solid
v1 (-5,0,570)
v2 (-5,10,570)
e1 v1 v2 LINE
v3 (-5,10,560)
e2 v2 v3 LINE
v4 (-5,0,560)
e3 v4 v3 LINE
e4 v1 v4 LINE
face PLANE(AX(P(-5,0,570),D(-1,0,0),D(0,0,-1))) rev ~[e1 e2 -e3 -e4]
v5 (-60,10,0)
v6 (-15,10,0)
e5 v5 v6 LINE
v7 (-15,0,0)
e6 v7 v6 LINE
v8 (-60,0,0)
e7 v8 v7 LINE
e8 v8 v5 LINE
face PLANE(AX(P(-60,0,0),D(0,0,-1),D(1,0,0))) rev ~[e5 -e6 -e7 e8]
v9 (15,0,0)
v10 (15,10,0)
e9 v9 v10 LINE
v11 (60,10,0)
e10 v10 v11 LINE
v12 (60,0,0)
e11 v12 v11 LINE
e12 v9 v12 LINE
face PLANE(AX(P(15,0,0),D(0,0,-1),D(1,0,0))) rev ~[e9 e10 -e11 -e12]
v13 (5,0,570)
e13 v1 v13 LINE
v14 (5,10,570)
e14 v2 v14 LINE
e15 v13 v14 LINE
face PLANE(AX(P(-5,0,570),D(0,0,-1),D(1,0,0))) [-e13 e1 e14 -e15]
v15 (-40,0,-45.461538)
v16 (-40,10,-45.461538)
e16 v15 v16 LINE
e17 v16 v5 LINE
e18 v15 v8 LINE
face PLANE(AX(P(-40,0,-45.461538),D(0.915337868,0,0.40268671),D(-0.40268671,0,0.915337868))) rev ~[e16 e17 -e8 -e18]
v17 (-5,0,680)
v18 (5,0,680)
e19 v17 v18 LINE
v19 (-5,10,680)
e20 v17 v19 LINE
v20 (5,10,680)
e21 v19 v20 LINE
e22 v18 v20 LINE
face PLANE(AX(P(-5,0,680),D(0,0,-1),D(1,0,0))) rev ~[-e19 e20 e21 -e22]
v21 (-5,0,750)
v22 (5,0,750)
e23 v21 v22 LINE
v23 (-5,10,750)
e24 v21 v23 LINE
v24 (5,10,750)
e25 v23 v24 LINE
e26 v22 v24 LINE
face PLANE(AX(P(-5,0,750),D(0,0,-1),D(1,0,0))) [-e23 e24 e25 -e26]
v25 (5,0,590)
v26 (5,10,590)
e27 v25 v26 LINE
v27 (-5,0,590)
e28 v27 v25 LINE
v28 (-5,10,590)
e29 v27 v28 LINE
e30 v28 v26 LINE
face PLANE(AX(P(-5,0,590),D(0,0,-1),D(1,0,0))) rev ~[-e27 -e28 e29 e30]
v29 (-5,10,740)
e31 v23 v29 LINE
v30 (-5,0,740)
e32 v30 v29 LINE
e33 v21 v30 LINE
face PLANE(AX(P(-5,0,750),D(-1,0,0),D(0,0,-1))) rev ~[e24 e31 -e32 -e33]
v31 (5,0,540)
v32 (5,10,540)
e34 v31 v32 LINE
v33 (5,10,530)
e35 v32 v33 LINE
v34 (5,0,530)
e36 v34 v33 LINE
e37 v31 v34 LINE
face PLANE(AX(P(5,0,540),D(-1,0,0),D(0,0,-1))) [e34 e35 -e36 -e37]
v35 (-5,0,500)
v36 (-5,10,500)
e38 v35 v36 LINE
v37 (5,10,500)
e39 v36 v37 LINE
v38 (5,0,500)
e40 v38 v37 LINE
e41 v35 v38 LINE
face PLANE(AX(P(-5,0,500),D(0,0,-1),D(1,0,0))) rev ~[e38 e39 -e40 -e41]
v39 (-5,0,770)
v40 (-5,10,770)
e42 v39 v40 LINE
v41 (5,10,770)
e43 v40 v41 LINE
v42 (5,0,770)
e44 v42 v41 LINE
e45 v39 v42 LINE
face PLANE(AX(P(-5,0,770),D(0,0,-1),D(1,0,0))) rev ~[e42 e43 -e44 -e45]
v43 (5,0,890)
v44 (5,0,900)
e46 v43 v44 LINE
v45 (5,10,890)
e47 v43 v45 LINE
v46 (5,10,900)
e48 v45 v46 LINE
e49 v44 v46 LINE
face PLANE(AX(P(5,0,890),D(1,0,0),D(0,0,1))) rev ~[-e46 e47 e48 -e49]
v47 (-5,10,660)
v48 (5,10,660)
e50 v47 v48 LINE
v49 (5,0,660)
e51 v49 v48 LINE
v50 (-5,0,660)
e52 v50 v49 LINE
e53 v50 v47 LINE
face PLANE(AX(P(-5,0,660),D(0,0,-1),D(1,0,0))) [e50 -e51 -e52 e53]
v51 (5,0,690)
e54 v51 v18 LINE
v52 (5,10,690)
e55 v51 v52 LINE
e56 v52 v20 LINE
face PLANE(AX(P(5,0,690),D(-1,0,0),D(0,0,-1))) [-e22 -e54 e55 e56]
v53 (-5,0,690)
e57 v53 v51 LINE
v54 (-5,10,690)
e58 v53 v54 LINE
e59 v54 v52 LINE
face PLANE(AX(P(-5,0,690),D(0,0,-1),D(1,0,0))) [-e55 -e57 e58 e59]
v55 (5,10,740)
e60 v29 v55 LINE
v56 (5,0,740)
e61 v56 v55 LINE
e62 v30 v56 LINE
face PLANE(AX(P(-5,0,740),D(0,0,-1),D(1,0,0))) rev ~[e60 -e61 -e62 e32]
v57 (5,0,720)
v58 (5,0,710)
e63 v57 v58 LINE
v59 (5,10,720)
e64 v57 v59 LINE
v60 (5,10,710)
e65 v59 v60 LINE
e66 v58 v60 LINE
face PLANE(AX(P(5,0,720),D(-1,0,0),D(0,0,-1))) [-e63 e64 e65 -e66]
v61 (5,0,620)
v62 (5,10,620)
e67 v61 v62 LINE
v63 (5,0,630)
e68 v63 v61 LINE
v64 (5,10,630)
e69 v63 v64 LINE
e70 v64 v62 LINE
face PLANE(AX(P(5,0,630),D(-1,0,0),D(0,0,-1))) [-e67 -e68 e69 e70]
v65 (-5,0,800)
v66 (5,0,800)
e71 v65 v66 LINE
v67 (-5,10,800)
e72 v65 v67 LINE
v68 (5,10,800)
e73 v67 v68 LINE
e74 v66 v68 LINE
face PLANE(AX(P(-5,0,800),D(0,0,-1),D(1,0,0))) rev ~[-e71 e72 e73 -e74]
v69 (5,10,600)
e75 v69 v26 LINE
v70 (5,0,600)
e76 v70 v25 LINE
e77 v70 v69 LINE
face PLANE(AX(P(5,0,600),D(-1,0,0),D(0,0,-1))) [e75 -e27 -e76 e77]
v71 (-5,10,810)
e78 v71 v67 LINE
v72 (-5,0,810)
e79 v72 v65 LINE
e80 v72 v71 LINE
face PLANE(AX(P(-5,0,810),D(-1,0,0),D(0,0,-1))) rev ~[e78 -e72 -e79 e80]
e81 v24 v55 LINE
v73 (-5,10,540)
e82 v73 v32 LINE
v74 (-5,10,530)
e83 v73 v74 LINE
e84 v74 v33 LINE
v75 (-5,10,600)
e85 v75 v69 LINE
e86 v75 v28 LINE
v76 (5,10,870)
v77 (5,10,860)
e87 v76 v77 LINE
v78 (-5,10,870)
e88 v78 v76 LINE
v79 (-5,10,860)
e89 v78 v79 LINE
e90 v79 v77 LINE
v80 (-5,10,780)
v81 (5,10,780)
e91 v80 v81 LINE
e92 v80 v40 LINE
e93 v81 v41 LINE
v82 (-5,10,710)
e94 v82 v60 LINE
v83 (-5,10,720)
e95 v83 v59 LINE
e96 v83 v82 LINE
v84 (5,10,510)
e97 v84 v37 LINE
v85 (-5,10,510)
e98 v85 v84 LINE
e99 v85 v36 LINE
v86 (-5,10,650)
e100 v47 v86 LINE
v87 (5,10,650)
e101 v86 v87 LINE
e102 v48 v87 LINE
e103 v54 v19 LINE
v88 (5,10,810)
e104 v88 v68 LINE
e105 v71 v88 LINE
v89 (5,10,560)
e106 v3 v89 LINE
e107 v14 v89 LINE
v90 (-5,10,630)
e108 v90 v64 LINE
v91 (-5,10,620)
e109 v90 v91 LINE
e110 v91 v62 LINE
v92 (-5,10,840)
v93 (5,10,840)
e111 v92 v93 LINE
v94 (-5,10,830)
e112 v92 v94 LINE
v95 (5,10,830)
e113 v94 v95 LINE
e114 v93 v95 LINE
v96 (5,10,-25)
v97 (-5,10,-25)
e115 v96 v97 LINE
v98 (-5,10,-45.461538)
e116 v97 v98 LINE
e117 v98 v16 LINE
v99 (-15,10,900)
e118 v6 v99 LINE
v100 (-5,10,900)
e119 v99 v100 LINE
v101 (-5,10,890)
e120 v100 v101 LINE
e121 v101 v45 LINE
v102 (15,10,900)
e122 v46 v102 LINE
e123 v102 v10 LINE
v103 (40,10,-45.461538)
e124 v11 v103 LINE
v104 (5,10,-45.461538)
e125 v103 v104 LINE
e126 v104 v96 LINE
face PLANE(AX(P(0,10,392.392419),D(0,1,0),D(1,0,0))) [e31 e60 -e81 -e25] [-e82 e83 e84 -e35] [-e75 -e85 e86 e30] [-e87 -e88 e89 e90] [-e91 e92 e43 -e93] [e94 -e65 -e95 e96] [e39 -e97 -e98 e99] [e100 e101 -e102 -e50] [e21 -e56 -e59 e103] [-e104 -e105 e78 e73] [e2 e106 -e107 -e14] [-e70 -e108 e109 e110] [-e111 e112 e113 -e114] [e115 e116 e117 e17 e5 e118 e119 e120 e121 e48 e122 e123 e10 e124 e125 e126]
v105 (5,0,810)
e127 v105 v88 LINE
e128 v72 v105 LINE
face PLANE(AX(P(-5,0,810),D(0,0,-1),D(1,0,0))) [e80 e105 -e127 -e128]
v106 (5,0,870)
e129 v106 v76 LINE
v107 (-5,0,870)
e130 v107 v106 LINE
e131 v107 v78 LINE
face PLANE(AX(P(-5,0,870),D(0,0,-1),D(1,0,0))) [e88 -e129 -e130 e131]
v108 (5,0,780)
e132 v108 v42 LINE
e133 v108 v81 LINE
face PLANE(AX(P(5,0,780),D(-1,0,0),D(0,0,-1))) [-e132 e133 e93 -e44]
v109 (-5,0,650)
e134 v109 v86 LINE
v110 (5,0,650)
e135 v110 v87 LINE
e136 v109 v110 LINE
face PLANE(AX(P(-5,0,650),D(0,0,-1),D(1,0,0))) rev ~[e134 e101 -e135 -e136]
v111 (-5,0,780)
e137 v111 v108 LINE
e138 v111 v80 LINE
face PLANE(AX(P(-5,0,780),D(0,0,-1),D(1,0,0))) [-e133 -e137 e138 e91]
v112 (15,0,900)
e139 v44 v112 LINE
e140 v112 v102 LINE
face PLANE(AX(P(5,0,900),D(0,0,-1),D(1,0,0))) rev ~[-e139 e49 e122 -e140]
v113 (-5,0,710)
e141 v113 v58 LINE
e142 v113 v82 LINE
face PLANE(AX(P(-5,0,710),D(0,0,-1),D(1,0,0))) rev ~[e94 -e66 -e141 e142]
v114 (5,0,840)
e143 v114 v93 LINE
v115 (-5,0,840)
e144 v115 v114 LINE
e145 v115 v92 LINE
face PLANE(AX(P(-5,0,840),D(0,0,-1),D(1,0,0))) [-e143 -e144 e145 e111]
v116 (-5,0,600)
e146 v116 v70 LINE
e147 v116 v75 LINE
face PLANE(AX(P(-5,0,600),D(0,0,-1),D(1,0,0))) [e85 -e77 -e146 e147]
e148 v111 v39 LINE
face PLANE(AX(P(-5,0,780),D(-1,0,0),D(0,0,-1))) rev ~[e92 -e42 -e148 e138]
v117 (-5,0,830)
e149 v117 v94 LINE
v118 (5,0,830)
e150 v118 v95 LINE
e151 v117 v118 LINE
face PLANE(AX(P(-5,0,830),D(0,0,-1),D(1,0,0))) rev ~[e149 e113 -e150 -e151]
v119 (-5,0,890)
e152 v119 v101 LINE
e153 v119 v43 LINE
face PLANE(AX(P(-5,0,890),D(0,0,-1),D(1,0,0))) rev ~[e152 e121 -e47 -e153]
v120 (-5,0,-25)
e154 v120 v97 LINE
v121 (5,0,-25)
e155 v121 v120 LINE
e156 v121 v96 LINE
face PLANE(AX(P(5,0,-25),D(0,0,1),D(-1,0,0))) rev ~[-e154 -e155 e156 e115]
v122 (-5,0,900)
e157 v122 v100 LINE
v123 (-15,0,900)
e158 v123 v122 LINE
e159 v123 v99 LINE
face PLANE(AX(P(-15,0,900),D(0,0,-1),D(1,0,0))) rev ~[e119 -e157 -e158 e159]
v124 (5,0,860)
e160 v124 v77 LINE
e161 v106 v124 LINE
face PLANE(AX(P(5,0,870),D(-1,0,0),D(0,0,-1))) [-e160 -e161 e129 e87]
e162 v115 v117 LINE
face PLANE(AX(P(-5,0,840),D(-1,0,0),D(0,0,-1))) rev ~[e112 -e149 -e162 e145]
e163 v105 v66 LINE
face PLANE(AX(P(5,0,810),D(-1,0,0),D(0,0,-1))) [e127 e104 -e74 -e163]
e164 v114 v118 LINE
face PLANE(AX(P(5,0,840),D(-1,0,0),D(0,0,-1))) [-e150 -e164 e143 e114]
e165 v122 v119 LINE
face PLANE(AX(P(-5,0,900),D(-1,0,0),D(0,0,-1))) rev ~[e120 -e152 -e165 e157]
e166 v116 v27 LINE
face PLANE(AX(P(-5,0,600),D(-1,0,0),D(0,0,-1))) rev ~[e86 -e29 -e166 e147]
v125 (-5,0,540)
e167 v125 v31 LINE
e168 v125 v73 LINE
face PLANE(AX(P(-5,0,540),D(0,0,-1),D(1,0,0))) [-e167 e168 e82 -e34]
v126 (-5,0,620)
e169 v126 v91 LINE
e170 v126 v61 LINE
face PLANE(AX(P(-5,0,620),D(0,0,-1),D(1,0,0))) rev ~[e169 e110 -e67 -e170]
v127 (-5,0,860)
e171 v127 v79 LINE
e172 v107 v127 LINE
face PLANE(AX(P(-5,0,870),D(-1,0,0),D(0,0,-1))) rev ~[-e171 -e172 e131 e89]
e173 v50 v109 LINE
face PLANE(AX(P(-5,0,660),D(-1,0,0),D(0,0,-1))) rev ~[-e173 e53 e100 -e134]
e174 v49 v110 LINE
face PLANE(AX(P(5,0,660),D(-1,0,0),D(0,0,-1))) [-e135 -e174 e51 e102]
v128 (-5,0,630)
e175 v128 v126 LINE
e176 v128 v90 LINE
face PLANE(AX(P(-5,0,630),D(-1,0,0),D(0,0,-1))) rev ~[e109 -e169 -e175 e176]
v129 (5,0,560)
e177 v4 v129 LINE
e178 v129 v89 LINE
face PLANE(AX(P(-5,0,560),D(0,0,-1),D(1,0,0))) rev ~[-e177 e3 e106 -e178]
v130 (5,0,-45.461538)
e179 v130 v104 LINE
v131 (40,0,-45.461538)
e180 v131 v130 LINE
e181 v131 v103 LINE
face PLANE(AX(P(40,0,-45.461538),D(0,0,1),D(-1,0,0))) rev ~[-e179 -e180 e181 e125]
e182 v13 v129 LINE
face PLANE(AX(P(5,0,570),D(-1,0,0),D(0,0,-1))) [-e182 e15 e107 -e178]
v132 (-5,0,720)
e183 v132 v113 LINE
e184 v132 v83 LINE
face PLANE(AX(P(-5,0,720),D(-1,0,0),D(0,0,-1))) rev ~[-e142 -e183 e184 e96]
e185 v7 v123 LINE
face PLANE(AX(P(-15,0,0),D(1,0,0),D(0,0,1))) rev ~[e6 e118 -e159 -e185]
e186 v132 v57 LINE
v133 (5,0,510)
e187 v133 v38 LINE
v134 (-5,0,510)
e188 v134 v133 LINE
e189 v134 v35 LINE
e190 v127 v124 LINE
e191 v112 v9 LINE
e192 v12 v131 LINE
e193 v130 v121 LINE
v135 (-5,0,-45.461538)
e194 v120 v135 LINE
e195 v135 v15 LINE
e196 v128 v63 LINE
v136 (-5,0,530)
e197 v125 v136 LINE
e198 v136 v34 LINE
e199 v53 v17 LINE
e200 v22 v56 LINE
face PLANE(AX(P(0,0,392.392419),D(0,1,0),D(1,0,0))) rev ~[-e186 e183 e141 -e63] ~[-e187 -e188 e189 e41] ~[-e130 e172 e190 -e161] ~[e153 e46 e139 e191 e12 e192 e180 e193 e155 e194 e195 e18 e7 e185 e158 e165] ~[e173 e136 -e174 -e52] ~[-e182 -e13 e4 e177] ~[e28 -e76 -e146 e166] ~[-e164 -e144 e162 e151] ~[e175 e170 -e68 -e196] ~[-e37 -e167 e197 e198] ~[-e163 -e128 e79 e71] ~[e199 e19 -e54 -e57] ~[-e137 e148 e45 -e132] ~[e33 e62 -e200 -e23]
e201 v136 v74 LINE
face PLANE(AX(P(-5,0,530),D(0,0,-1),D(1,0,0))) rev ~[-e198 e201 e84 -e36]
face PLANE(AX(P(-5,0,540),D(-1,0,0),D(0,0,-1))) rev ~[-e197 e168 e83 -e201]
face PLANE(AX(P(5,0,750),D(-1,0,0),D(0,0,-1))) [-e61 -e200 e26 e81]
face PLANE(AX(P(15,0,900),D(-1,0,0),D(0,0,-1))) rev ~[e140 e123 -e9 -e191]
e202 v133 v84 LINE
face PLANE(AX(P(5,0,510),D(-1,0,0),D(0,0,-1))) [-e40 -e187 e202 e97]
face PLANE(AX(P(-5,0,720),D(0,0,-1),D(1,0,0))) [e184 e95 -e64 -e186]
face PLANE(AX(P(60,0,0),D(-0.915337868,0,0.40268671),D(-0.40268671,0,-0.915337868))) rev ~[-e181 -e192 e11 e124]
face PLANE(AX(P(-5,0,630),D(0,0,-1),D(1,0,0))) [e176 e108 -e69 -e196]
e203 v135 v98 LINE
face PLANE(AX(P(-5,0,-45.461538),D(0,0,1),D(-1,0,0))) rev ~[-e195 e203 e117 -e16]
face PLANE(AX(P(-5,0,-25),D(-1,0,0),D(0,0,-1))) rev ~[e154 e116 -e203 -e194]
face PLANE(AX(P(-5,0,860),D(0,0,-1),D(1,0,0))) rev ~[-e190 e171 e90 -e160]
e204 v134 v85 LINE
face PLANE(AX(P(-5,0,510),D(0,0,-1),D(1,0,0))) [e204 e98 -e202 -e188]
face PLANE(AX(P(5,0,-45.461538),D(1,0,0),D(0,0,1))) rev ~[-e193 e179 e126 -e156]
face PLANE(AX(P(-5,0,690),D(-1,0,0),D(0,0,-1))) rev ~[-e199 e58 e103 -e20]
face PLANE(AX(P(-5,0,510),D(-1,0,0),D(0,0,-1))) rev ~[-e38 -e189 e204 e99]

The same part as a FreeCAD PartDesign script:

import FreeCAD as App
import Part
import Sketcher
from FreeCAD import Vector
Q = App.Units.Quantity


def add_polygon(sketch, points):
    """Adds a closed chain of lines whose ends are joined by coincident constraints."""
    first, n = sketch.GeometryCount, len(points)
    for a, b in zip(points, points[1:] + points[:1]):
        sketch.addGeometry(Part.LineSegment(App.Vector(*a, 0), App.Vector(*b, 0)), False)
    for i in range(n):
        sketch.addConstraint(Sketcher.Constraint("Coincident", first + i, 2, first + (i + 1) % n, 1))

doc = App.newDocument("Part")
params = doc.addObject("Spreadsheet::Sheet", "Params")
for row, (alias, value) in enumerate([
    ("sketch1_width", "45 mm"),
    ("sketch1_width2", "10 mm"),
    ("sketch1_width3", "35 mm"),
    ("sketch1_height", "900 mm"),
    ("pad1_length", "10 mm"),
], start=1):
    params.set(f"A{row}", alias)
    params.set(f"B{row}", "=" + value)
    params.setAlias(f"B{row}", alias)

body = doc.addObject("PartDesign::Body", "Body")

sketch1 = body.newObject("Sketcher::SketchObject", "Sketch")
sketch1.AttachmentSupport = (doc.getObject("XZ_Plane"), [""])
sketch1.MapMode = "FlatFace"
add_polygon(sketch1, [(-60, 0), (-15, 0), (-15, 900), (-5, 900), (-5, 890), (5, 890), (5, 900), (15, 900), (15, 0), (60, 0), (40, -45.461538), (5, -45.461538), (5, -25), (-5, -25), (-5, -45.461538), (-40, -45.461538)])
add_polygon(sketch1, [(5, 870), (-5, 870), (-5, 860), (5, 860)])
add_polygon(sketch1, [(5, 840), (-5, 840), (-5, 830), (5, 830)])
add_polygon(sketch1, [(5, 810), (-5, 810), (-5, 800), (5, 800)])
add_polygon(sketch1, [(5, 780), (-5, 780), (-5, 770), (5, 770)])
add_polygon(sketch1, [(5, 750), (-5, 750), (-5, 740), (5, 740)])
add_polygon(sketch1, [(5, 720), (-5, 720), (-5, 710), (5, 710)])
add_polygon(sketch1, [(5, 690), (-5, 690), (-5, 680), (5, 680)])
add_polygon(sketch1, [(5, 660), (-5, 660), (-5, 650), (5, 650)])
add_polygon(sketch1, [(5, 630), (-5, 630), (-5, 620), (5, 620)])
add_polygon(sketch1, [(5, 600), (-5, 600), (-5, 590), (5, 590)])
add_polygon(sketch1, [(5, 570), (-5, 570), (-5, 560), (5, 560)])
add_polygon(sketch1, [(5, 540), (-5, 540), (-5, 530), (5, 530)])
add_polygon(sketch1, [(5, 510), (-5, 510), (-5, 500), (5, 500)])
sketch1.addConstraint([
    Sketcher.Constraint("Horizontal", 0),
    Sketcher.Constraint("Vertical", 1),
    Sketcher.Constraint("Horizontal", 2),
    Sketcher.Constraint("Vertical", 3),
    Sketcher.Constraint("Horizontal", 4),
    Sketcher.Constraint("Vertical", 5),
    Sketcher.Constraint("Horizontal", 6),
    Sketcher.Constraint("Vertical", 7),
    Sketcher.Constraint("Horizontal", 8),
    Sketcher.Constraint("Horizontal", 10),
    Sketcher.Constraint("Vertical", 11),
    Sketcher.Constraint("Horizontal", 12),
    Sketcher.Constraint("Vertical", 13),
    Sketcher.Constraint("Horizontal", 14),
    Sketcher.Constraint("Horizontal", 16),
    Sketcher.Constraint("Vertical", 17),
    Sketcher.Constraint("Horizontal", 18),
    Sketcher.Constraint("Vertical", 19),
    Sketcher.Constraint("Horizontal", 20),
    Sketcher.Constraint("Vertical", 21),
    Sketcher.Constraint("Horizontal", 22),
    Sketcher.Constraint("Vertical", 23),
    Sketcher.Constraint("Horizontal", 24),
    Sketcher.Constraint("Vertical", 25),
    Sketcher.Constraint("Horizontal", 26),
    Sketcher.Constraint("Vertical", 27),
    Sketcher.Constraint("Horizontal", 28),
    Sketcher.Constraint("Vertical", 29),
    Sketcher.Constraint("Horizontal", 30),
    Sketcher.Constraint("Vertical", 31),
    Sketcher.Constraint("Horizontal", 32),
    Sketcher.Constraint("Vertical", 33),
    Sketcher.Constraint("Horizontal", 34),
    Sketcher.Constraint("Vertical", 35),
    Sketcher.Constraint("Horizontal", 36),
    Sketcher.Constraint("Vertical", 37),
    Sketcher.Constraint("Horizontal", 38),
    Sketcher.Constraint("Vertical", 39),
    Sketcher.Constraint("Horizontal", 40),
    Sketcher.Constraint("Vertical", 41),
    Sketcher.Constraint("Horizontal", 42),
    Sketcher.Constraint("Vertical", 43),
    Sketcher.Constraint("Horizontal", 44),
    Sketcher.Constraint("Vertical", 45),
    Sketcher.Constraint("Horizontal", 46),
    Sketcher.Constraint("Vertical", 47),
    Sketcher.Constraint("Horizontal", 48),
    Sketcher.Constraint("Vertical", 49),
    Sketcher.Constraint("Horizontal", 50),
    Sketcher.Constraint("Vertical", 51),
    Sketcher.Constraint("Horizontal", 52),
    Sketcher.Constraint("Vertical", 53),
    Sketcher.Constraint("Horizontal", 54),
    Sketcher.Constraint("Vertical", 55),
    Sketcher.Constraint("Horizontal", 56),
    Sketcher.Constraint("Vertical", 57),
    Sketcher.Constraint("Horizontal", 58),
    Sketcher.Constraint("Vertical", 59),
    Sketcher.Constraint("Horizontal", 60),
    Sketcher.Constraint("Vertical", 61),
    Sketcher.Constraint("Horizontal", 62),
    Sketcher.Constraint("Vertical", 63),
    Sketcher.Constraint("Horizontal", 64),
    Sketcher.Constraint("Vertical", 65),
    Sketcher.Constraint("Horizontal", 66),
    Sketcher.Constraint("Vertical", 67),
    Sketcher.Constraint("Symmetric", 0, 2, 7, 2, -1, 1),
    Sketcher.Constraint("Symmetric", 2, 2, 5, 2, -2),
    Sketcher.Constraint("Symmetric", 10, 2, 13, 2, -2),
    Sketcher.Constraint("Symmetric", 8, 2, 15, 2, -2),
    Sketcher.Constraint("Vertical", 5, 2, 10, 2),
    Sketcher.Constraint("Vertical", 13, 2, 16, 2),
    Sketcher.Constraint("Vertical", 11, 2, 18, 2),
    Sketcher.Constraint("Vertical", 17, 2, 20, 2),
    Sketcher.Constraint("Vertical", 19, 2, 22, 2),
    Sketcher.Constraint("Vertical", 21, 2, 24, 2),
    Sketcher.Constraint("Vertical", 23, 2, 26, 2),
    Sketcher.Constraint("Vertical", 25, 2, 28, 2),
    Sketcher.Constraint("Vertical", 27, 2, 30, 2),
    Sketcher.Constraint("Vertical", 29, 2, 32, 2),
    Sketcher.Constraint("Vertical", 31, 2, 34, 2),
    Sketcher.Constraint("Vertical", 33, 2, 36, 2),
    Sketcher.Constraint("Vertical", 35, 2, 38, 2),
    Sketcher.Constraint("Vertical", 37, 2, 40, 2),
    Sketcher.Constraint("Vertical", 39, 2, 42, 2),
    Sketcher.Constraint("Vertical", 41, 2, 44, 2),
    Sketcher.Constraint("Vertical", 43, 2, 46, 2),
    Sketcher.Constraint("Vertical", 45, 2, 48, 2),
    Sketcher.Constraint("Vertical", 47, 2, 50, 2),
    Sketcher.Constraint("Vertical", 49, 2, 52, 2),
    Sketcher.Constraint("Vertical", 51, 2, 54, 2),
    Sketcher.Constraint("Vertical", 53, 2, 56, 2),
    Sketcher.Constraint("Vertical", 55, 2, 58, 2),
    Sketcher.Constraint("Vertical", 57, 2, 60, 2),
    Sketcher.Constraint("Vertical", 59, 2, 62, 2),
    Sketcher.Constraint("Vertical", 61, 2, 64, 2),
    Sketcher.Constraint("Vertical", 63, 2, 66, 2),
    Sketcher.Constraint("Equal", 2, 4),
    Sketcher.Constraint("Equal", 10, 14),
    Sketcher.Constraint("Equal", 66, 3),
    Sketcher.Constraint("Equal", 5, 17),
    Sketcher.Constraint("Equal", 19, 21),
    Sketcher.Constraint("Equal", 23, 25),
    Sketcher.Constraint("Equal", 27, 29),
    Sketcher.Constraint("Equal", 31, 33),
    Sketcher.Constraint("Equal", 35, 37),
    Sketcher.Constraint("Equal", 39, 41),
    Sketcher.Constraint("Equal", 43, 45),
    Sketcher.Constraint("Equal", 47, 49),
    Sketcher.Constraint("Equal", 51, 53),
    Sketcher.Constraint("Equal", 55, 57),
    Sketcher.Constraint("Equal", 59, 61),
    Sketcher.Constraint("Equal", 63, 65),
    Sketcher.Constraint("DistanceX", 0, 1, 0, 2, Q("45 mm")),
    Sketcher.Constraint("DistanceX", 2, 1, 2, 2, Q("10 mm")),
    Sketcher.Constraint("DistanceX", 10, 2, 10, 1, Q("35 mm")),
    Sketcher.Constraint("DistanceY", 1, 1, 1, 2, Q("900 mm")),
    Sketcher.Constraint("DistanceY", 11, 2, -1, 1, Q("25 mm")),
    Sketcher.Constraint("DistanceY", -1, 1, 16, 2, Q("870 mm")),
    Sketcher.Constraint("DistanceY", -1, 1, 20, 2, Q("840 mm")),
    Sketcher.Constraint("DistanceY", -1, 1, 24, 2, Q("810 mm")),
    Sketcher.Constraint("DistanceY", -1, 1, 28, 2, Q("780 mm")),
    Sketcher.Constraint("DistanceY", -1, 1, 32, 2, Q("750 mm")),
    Sketcher.Constraint("DistanceY", -1, 1, 36, 2, Q("720 mm")),
    Sketcher.Constraint("DistanceY", -1, 1, 40, 2, Q("690 mm")),
    Sketcher.Constraint("DistanceY", -1, 1, 44, 2, Q("660 mm")),
    Sketcher.Constraint("DistanceY", -1, 1, 48, 2, Q("630 mm")),
    Sketcher.Constraint("DistanceY", -1, 1, 52, 2, Q("600 mm")),
    Sketcher.Constraint("DistanceY", -1, 1, 56, 2, Q("570 mm")),
    Sketcher.Constraint("DistanceY", -1, 1, 60, 2, Q("540 mm")),
    Sketcher.Constraint("DistanceY", -1, 1, 64, 2, Q("510 mm")),
    Sketcher.Constraint("Distance", 9, Q("49.666402 mm")),
])
sketch1.setExpression("Constraints[181]", "Params.sketch1_width")
sketch1.setExpression("Constraints[182]", "Params.sketch1_width2")
sketch1.setExpression("Constraints[183]", "Params.sketch1_width3")
sketch1.setExpression("Constraints[184]", "Params.sketch1_height")
pad1 = body.newObject("PartDesign::Pad", "Pad")
pad1.Profile = sketch1
pad1.setExpression("Length", "Params.pad1_length")
pad1.Reversed = True

doc.recompute()
